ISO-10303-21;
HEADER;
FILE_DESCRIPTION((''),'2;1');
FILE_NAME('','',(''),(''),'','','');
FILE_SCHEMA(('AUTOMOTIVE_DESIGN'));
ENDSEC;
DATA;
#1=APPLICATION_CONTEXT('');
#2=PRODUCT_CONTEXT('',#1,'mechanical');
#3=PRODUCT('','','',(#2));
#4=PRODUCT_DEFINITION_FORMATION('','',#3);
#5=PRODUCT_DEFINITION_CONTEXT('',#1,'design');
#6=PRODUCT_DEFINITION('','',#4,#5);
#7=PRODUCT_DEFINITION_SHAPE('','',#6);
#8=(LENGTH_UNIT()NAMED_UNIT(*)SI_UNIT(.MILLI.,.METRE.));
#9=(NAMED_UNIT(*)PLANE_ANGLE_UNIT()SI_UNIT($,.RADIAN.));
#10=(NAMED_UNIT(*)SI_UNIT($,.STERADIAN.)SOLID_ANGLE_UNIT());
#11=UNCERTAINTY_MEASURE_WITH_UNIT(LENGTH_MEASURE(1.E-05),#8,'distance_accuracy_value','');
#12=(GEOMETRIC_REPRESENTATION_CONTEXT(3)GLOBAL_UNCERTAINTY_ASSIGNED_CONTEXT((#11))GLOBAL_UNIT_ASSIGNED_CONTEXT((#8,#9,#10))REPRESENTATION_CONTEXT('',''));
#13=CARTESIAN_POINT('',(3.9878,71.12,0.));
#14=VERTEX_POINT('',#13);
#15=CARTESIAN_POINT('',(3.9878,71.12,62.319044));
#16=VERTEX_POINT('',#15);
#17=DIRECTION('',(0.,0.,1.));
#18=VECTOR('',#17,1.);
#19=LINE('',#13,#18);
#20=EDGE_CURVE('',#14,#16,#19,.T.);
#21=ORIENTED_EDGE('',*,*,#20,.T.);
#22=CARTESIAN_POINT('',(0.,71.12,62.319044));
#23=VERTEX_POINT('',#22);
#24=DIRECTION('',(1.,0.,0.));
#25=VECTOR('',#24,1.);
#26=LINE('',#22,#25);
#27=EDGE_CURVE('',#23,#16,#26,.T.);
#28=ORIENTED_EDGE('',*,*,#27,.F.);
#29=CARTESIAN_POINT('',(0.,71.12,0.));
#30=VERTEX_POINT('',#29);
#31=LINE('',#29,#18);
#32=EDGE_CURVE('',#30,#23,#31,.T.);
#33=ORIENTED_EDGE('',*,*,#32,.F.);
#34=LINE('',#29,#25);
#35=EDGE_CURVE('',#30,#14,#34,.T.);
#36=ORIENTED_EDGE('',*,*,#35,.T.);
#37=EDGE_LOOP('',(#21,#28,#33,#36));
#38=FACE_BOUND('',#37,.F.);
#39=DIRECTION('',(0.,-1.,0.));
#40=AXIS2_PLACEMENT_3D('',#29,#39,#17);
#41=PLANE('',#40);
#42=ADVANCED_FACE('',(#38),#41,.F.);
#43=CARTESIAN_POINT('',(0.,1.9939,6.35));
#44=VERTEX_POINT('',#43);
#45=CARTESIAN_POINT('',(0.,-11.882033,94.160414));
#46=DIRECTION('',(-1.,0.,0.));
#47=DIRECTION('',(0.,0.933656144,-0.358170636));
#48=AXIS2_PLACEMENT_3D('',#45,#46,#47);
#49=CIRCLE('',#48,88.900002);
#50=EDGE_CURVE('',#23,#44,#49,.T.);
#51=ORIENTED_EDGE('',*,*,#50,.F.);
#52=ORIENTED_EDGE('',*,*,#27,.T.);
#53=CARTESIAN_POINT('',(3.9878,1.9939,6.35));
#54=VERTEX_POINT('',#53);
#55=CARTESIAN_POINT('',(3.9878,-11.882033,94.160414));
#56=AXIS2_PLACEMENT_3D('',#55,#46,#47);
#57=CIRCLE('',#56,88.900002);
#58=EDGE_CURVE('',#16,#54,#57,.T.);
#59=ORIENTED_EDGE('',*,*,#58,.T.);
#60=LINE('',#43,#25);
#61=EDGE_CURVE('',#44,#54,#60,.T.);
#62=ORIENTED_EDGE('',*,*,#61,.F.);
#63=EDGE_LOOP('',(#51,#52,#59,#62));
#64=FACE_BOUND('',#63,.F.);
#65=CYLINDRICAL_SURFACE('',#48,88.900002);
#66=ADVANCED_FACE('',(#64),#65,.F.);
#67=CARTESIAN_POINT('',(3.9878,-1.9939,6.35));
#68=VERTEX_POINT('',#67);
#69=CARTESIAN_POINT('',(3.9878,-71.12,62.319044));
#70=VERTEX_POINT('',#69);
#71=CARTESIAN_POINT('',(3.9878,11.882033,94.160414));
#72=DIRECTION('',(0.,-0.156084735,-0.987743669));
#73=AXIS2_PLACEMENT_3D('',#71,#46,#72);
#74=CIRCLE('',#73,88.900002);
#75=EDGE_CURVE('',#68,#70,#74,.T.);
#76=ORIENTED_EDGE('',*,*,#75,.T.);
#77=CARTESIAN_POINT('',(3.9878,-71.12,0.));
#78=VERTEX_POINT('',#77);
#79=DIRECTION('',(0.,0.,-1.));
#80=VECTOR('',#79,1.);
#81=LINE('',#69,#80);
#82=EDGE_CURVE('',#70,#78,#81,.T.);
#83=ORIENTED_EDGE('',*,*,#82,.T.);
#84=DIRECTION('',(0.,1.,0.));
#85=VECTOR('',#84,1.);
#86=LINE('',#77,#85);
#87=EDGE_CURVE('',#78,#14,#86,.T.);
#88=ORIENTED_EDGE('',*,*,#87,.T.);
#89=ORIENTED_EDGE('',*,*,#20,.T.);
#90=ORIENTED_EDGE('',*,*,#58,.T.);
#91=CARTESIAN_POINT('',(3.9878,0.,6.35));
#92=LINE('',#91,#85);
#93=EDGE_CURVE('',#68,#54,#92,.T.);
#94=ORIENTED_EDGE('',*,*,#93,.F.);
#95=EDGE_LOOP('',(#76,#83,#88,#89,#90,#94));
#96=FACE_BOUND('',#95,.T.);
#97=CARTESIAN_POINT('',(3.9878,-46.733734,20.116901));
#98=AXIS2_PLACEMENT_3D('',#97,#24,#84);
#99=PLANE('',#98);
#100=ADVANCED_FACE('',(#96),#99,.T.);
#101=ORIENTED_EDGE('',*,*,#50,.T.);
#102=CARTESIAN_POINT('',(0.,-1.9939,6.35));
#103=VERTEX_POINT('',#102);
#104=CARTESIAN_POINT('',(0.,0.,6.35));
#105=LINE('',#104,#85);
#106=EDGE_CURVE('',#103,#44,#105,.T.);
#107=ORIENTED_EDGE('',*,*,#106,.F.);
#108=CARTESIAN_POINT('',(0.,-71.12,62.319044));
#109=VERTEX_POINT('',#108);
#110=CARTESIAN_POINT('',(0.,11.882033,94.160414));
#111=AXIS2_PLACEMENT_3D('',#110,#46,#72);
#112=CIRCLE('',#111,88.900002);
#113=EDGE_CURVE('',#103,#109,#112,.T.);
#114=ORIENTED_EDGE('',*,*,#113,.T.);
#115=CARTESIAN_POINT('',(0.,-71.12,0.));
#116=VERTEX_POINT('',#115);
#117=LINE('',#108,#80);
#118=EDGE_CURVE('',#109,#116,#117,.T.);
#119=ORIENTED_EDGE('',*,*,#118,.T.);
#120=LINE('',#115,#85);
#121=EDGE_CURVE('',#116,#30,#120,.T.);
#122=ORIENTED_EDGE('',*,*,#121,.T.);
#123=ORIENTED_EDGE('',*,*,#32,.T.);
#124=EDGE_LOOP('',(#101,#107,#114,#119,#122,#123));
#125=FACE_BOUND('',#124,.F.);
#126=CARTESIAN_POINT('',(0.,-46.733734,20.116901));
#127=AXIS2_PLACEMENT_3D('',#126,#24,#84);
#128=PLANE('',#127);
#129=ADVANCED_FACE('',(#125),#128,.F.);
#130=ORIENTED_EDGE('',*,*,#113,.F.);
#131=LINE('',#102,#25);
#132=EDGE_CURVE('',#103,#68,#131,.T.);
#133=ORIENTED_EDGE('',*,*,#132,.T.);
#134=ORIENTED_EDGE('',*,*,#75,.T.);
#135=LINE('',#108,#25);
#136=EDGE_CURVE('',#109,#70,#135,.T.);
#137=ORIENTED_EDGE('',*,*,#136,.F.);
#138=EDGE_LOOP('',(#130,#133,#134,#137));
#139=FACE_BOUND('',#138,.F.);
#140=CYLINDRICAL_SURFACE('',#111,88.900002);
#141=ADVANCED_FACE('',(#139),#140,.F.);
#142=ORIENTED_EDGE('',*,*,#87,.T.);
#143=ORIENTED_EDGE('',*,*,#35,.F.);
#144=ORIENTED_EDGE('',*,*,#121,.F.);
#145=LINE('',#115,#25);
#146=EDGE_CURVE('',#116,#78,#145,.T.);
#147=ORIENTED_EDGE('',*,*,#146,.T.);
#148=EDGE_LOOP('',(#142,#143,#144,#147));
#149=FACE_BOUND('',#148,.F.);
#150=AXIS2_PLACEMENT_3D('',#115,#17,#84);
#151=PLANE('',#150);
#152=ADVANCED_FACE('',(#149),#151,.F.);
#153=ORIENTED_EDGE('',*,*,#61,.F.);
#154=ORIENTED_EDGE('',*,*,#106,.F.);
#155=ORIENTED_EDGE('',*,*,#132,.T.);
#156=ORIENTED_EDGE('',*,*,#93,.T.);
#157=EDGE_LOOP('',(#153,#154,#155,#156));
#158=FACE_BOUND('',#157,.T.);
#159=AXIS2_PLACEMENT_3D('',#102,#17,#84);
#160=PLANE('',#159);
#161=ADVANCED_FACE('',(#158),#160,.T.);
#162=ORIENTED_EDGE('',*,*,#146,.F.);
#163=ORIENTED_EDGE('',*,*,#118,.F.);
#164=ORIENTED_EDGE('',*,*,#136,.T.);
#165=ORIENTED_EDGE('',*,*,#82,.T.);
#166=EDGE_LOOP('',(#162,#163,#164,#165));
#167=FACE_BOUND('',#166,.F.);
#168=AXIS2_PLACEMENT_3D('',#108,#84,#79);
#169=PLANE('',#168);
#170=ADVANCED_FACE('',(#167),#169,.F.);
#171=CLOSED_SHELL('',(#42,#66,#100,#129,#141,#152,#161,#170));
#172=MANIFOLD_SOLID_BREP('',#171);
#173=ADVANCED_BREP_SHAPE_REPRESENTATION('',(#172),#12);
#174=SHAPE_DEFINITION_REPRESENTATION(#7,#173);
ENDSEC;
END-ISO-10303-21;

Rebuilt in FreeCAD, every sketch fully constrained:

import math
import FreeCAD as App
import Part
import Sketcher
Q = App.Units.Quantity

doc = App.newDocument("Part")
params = doc.addObject("Spreadsheet::Sheet", "Params")
for row, (alias, value) in enumerate([
    ("sketch1_radius", "3.5000001 in"),
    ("sketch1_width", "5.6 in"),
    ("sketch1_width2", "0.157 in"),
    ("pad1_length", "0.157 in"),
], start=1):
    params.set(f"A{row}", alias)
    params.set(f"B{row}", "=" + value)
    params.setAlias(f"B{row}", alias)

body = doc.addObject("PartDesign::Body", "Body")

sketch1 = body.newObject("Sketcher::SketchObject", "Sketch")
sketch1.AttachmentSupport = (doc.getObject("YZ_Plane"), [""])
sketch1.MapMode = "FlatFace"
sketch1.addGeometry([
    Part.LineSegment(App.Vector(-71.1, 0, 0), App.Vector(71.1, 0, 0)),
    Part.LineSegment(App.Vector(71.1, 0, 0), App.Vector(71.1, 62.3, 0)),
    Part.ArcOfCircle(Part.Circle(App.Vector(-11.9, 94.2, 0), App.Vector(0, 0, 1), 88.9), math.radians(-81), math.radians(-21)),
    Part.LineSegment(App.Vector(2, 6.3, 0), App.Vector(-2, 6.3, 0)),
    Part.ArcOfCircle(Part.Circle(App.Vector(11.9, 94.2, 0), App.Vector(0, 0, 1), 88.9), math.radians(-159), math.radians(-99)),
    Part.LineSegment(App.Vector(-71.1, 62.3, 0), App.Vector(-71.1, 0, 0)),
], False)
sketch1.addConstraint([
    Sketcher.Constraint("Coincident", 0, 2, 1, 1),
    Sketcher.Constraint("Coincident", 1, 2, 2, 2),
    Sketcher.Constraint("Coincident", 2, 1, 3, 1),
    Sketcher.Constraint("Coincident", 3, 2, 4, 2),
    Sketcher.Constraint("Coincident", 4, 1, 5, 1),
    Sketcher.Constraint("Coincident", 5, 2, 0, 1),
    Sketcher.Constraint("Horizontal", 0),
    Sketcher.Constraint("Vertical", 1),
    Sketcher.Constraint("Horizontal", 3),
    Sketcher.Constraint("Vertical", 5),
    Sketcher.Constraint("Equal", 2, 4),
    Sketcher.Constraint("Symmetric", 0, 2, 5, 2, -1, 1),
    Sketcher.Constraint("Symmetric", 2, 3, 4, 3, -2),
    Sketcher.Constraint("Radius", 2, Q("3.5000001 in")),
    Sketcher.Constraint("DistanceX", 0, 1, 0, 2, Q("5.6 in")),
    Sketcher.Constraint("DistanceX", 3, 2, 3, 1, Q("0.157 in")),
    Sketcher.Constraint("DistanceY", -1, 1, 2, 1, Q("0.25 in")),
    Sketcher.Constraint("DistanceY", 1, 1, 1, 2, 62.319044),
])
sketch1.setExpression("Constraints[13]", "Params.sketch1_radius")
sketch1.setExpression("Constraints[14]", "Params.sketch1_width")
sketch1.setExpression("Constraints[15]", "Params.sketch1_width2")
pad1 = body.newObject("PartDesign::Pad", "Pad")
pad1.Profile = sketch1
pad1.setExpression("Length", "Params.pad1_length")

doc.recompute()
